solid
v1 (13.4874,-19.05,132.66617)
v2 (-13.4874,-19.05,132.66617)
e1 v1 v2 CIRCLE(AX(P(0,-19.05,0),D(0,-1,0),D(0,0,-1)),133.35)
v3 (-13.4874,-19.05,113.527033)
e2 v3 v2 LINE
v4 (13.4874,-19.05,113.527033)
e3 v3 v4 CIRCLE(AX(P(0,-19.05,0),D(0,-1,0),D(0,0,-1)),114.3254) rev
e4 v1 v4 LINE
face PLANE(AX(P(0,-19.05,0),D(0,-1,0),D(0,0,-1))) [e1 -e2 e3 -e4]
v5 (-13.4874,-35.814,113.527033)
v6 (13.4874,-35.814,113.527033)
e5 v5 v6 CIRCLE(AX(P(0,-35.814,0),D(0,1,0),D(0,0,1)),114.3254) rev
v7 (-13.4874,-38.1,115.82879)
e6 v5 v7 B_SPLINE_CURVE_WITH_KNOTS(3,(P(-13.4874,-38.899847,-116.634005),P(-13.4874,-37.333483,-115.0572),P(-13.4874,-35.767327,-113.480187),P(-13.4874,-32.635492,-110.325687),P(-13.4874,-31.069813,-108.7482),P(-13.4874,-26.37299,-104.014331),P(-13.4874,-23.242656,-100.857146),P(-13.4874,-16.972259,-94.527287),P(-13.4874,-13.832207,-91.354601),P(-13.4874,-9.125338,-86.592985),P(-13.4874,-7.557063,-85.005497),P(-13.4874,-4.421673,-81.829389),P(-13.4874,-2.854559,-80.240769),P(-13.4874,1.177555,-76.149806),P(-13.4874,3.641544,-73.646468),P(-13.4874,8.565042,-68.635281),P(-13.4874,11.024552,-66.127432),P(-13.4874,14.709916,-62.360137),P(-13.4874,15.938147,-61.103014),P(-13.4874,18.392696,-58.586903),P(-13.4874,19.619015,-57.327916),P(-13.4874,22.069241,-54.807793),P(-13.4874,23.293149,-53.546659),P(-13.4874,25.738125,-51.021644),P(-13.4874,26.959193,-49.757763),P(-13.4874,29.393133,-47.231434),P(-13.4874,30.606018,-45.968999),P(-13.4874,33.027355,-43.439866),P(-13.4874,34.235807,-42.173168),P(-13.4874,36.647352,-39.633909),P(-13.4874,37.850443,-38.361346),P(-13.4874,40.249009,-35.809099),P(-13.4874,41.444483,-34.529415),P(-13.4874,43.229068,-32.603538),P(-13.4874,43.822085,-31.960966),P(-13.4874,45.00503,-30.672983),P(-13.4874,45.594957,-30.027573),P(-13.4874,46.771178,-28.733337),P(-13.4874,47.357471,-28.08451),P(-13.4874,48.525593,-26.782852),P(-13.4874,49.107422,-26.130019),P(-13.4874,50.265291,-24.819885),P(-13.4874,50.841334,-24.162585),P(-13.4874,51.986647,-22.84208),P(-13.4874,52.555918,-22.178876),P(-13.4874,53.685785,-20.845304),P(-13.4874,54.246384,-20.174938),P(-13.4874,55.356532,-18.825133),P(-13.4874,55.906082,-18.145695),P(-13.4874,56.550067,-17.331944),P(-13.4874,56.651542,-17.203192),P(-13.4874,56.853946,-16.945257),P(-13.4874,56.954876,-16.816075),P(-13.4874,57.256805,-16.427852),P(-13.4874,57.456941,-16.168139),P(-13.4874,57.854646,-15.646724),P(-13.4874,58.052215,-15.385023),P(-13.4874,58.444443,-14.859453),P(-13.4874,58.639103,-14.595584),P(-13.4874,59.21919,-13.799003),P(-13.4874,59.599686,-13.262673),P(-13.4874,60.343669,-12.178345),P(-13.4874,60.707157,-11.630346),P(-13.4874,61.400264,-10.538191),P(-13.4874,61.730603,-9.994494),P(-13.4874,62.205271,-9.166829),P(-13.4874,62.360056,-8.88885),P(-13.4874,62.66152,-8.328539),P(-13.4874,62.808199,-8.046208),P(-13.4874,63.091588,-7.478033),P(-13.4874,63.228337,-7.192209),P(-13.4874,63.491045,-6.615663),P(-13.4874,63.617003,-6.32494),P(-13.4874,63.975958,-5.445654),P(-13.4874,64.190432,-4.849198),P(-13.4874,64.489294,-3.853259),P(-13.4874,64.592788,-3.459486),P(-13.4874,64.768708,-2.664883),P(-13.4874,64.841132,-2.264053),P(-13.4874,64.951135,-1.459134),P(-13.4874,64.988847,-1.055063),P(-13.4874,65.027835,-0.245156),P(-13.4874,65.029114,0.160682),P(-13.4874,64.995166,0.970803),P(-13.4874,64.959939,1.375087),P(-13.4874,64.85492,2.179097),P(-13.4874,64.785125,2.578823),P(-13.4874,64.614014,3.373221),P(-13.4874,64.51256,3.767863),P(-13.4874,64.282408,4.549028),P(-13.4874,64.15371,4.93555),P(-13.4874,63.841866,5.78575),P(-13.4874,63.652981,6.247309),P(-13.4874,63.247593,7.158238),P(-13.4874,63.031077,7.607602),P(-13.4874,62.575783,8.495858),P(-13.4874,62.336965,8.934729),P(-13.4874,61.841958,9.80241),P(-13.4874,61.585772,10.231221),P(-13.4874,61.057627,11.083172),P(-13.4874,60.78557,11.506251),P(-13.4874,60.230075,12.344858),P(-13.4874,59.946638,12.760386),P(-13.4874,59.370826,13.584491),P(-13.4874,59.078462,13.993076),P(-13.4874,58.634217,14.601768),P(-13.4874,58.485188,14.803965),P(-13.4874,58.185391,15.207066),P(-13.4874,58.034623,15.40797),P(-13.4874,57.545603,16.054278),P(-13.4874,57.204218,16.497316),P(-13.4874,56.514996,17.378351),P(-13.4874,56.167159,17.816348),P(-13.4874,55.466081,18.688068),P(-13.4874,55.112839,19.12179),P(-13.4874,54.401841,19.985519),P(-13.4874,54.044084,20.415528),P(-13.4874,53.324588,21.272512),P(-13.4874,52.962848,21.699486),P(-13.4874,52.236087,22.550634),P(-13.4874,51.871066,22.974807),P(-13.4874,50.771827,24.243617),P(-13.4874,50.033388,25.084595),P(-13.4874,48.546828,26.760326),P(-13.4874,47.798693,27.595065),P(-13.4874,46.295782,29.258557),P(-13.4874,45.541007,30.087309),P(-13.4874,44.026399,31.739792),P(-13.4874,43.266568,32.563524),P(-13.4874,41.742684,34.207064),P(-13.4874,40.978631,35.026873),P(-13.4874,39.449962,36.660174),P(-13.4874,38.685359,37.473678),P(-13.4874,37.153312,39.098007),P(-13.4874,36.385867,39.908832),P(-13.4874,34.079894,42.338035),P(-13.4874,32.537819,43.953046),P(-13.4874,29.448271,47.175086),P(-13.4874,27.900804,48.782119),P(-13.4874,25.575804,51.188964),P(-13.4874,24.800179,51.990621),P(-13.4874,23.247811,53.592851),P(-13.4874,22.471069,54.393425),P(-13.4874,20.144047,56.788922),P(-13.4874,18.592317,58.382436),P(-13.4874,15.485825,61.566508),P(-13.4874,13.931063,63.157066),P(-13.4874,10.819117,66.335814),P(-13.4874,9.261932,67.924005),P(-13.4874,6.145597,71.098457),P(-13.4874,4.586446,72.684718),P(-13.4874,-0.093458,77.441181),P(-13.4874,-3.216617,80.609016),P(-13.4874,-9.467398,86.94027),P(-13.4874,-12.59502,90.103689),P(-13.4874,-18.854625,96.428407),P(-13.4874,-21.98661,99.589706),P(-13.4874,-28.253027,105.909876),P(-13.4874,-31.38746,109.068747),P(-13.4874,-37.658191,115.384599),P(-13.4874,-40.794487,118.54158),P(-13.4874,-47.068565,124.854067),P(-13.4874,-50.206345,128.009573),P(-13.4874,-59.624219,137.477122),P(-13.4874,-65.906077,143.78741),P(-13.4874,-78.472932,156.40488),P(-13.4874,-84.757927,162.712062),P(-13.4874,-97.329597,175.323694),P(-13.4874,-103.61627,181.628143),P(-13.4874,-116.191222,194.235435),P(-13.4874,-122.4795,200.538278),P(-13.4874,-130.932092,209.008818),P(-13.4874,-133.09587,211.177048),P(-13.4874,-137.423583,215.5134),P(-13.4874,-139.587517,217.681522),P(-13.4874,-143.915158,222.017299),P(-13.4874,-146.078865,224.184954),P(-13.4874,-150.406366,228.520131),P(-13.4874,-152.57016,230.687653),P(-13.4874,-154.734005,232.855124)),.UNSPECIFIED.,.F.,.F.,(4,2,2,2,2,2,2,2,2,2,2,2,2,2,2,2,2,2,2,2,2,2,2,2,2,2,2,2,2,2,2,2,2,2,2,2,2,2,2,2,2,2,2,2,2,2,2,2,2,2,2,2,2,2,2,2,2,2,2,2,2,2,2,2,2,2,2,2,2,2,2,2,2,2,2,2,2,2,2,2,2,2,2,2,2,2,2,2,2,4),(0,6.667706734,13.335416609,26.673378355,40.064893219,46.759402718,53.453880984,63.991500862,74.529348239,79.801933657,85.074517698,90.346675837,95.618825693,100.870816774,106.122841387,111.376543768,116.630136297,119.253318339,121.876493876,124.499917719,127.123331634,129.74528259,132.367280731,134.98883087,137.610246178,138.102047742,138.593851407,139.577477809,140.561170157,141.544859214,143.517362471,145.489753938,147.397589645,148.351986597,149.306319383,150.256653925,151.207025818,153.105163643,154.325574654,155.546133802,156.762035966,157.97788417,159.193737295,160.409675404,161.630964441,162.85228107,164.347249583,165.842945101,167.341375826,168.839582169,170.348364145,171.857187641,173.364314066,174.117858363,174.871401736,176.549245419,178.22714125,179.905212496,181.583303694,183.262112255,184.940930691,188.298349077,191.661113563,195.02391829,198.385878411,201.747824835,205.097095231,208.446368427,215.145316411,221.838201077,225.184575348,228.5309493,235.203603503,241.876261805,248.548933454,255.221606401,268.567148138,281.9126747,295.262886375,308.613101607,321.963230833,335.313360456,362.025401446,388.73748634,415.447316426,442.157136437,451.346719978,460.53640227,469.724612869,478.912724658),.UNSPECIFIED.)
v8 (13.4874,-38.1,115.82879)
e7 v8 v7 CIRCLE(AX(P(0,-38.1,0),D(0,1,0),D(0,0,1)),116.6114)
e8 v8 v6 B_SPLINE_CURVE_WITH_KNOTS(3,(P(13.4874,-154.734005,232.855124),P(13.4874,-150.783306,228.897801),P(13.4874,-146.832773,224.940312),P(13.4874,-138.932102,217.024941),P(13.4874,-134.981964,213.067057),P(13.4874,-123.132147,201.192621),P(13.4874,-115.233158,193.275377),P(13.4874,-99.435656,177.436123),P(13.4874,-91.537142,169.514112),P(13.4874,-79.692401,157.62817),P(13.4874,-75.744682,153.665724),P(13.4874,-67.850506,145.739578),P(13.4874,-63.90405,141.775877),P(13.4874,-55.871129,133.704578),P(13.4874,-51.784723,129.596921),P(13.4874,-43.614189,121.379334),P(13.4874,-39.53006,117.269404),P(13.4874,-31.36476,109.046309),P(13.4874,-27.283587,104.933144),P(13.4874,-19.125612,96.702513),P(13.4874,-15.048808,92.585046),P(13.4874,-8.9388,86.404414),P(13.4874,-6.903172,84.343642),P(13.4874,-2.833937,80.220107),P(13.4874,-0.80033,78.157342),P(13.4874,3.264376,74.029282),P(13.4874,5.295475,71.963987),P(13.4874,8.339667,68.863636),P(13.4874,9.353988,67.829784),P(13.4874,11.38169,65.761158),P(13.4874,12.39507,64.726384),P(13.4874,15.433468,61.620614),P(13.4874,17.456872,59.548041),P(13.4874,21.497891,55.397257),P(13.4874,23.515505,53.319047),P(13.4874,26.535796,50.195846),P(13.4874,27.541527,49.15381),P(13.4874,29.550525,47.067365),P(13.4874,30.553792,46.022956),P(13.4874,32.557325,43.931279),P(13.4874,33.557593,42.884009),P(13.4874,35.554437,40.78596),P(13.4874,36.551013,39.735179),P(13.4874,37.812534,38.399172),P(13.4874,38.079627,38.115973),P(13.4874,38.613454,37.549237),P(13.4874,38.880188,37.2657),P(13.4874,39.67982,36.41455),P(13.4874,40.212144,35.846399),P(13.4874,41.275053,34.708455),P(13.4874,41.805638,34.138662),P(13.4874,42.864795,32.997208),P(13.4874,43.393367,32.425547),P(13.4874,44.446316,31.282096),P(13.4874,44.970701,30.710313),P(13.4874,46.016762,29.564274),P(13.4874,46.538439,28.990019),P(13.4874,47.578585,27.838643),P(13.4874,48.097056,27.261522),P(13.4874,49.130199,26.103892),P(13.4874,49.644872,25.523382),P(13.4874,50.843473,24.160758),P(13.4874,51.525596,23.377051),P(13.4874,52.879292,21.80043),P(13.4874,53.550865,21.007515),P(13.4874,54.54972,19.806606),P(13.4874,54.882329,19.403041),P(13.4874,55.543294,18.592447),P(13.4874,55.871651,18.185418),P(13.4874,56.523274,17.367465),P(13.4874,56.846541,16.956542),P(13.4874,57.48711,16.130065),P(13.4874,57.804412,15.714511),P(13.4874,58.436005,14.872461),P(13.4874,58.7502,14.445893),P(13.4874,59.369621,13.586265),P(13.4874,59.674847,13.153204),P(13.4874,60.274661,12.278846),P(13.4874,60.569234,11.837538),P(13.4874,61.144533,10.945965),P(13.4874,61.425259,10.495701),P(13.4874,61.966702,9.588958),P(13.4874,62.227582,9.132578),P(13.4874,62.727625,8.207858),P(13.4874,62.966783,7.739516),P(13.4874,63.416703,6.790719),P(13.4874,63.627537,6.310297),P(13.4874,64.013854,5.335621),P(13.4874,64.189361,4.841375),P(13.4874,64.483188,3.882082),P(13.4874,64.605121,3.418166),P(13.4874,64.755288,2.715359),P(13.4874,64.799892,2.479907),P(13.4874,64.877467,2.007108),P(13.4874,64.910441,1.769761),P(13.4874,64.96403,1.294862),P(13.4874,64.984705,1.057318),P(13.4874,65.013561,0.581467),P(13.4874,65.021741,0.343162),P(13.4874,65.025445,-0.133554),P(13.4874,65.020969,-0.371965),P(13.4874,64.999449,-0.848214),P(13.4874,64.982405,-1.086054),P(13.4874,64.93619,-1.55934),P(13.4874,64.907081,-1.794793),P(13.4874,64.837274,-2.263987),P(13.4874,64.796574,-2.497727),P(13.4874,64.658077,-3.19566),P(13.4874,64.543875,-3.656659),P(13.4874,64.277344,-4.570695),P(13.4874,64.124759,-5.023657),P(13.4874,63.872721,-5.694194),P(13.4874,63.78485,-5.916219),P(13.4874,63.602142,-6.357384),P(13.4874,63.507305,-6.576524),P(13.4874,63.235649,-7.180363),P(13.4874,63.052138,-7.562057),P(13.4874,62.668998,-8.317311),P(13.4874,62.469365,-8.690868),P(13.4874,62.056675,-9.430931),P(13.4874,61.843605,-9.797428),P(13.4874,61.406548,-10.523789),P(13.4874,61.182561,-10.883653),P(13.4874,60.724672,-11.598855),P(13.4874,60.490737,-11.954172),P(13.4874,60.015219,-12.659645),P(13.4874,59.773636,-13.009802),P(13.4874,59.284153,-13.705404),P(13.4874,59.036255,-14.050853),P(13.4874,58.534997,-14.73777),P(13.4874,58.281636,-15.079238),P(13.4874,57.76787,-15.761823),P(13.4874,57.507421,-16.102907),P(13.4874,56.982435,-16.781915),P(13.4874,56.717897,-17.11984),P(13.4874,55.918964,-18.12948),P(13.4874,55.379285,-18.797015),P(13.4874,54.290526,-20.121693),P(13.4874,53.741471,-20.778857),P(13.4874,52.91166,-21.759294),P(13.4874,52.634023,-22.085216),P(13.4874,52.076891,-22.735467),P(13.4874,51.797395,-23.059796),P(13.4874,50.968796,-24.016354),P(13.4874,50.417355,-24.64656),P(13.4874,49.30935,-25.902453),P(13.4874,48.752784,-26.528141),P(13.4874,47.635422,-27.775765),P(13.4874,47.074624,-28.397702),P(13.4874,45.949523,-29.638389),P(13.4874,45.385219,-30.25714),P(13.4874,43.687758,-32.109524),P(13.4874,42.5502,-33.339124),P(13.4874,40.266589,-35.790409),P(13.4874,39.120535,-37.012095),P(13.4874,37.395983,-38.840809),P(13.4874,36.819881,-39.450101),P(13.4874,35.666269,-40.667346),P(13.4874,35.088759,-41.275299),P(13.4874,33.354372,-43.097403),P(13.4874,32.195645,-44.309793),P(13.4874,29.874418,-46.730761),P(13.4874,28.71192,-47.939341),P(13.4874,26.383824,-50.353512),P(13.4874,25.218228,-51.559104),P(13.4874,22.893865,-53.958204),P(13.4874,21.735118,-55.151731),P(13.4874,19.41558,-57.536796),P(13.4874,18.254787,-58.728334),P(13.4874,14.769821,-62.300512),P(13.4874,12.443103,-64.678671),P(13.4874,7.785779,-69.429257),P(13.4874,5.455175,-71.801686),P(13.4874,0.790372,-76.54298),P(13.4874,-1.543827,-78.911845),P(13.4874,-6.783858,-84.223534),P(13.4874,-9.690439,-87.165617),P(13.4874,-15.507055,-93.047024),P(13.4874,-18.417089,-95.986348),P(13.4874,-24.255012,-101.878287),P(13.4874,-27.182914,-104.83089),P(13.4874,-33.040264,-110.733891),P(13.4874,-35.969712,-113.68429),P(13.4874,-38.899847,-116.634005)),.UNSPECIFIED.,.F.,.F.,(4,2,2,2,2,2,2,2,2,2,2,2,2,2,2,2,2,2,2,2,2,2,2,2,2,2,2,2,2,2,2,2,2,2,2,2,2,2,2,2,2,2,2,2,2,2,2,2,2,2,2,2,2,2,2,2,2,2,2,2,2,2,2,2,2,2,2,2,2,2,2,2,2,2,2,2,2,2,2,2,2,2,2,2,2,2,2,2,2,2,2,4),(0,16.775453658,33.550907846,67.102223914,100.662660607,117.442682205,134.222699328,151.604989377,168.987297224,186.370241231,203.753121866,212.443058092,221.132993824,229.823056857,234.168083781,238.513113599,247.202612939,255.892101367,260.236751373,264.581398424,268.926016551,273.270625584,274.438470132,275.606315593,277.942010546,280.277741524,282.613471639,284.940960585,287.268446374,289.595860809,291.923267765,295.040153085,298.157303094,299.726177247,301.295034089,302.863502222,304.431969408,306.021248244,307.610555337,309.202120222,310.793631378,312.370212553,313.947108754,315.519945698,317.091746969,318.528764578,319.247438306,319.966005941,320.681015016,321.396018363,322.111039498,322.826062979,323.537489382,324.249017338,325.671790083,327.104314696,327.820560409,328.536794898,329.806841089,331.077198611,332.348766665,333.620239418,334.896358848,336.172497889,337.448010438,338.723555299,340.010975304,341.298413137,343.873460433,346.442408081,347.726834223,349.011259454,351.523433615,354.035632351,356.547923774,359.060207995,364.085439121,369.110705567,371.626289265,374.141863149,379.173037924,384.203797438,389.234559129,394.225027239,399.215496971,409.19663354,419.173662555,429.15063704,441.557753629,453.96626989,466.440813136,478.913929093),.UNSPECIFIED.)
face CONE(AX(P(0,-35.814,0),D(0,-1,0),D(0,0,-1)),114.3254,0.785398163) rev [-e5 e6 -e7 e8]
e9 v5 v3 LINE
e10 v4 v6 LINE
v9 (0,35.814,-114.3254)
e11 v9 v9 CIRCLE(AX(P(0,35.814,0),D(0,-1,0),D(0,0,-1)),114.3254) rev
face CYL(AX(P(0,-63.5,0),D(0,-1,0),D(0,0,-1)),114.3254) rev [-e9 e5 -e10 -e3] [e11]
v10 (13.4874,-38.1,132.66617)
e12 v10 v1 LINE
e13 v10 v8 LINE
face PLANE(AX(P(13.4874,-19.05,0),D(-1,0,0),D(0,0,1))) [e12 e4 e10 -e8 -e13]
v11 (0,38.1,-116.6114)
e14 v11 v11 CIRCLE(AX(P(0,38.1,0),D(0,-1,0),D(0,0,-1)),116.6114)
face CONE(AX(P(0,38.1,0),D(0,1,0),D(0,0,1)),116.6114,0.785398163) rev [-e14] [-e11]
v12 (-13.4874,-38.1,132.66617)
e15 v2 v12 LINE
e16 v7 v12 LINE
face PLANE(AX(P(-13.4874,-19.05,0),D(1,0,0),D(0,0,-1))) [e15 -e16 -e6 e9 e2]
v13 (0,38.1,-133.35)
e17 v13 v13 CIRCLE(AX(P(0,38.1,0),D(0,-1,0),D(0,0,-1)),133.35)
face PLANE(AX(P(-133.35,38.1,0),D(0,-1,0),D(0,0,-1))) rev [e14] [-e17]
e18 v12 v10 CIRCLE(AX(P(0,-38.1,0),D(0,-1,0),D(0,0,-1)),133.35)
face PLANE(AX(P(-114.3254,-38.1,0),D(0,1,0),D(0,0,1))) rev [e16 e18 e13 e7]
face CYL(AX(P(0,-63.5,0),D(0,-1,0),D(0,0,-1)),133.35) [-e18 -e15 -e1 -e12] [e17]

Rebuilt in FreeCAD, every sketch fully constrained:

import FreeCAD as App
import Part
import Sketcher
from FreeCAD import Vector
Q = App.Units.Quantity


def edges_at(feature, points):
    """Names of the edges that pass closest to the given points."""
    edges = feature.Shape.Edges
    near = lambda p: min(range(len(edges)), key=lambda i: edges[i].distToShape(Part.Vertex(*p))[0])
    return sorted({f"Edge{near(p) + 1}" for p in points})

doc = App.newDocument("Part")
body = doc.addObject("PartDesign::Body", "Body")

# Sketch on XY plane
sketch1 = body.newObject("Sketcher::SketchObject", "Sketch")
sketch1.AttachmentSupport = (doc.getObject("XY_Plane"), [""])
sketch1.MapMode = "FlatFace"
sketch1.addGeometry(Part.LineSegment(Vector(-133, -38, 0), Vector(-114, -38, 0)), False)
sketch1.addGeometry(Part.LineSegment(Vector(-114, -38, 0), Vector(-114, 38, 0)), False)
sketch1.addGeometry(Part.LineSegment(Vector(-114, 38, 0), Vector(-133, 38, 0)), False)
sketch1.addGeometry(Part.LineSegment(Vector(-133, 38, 0), Vector(-133, -38, 0)), False)
sketch1.addConstraint(Sketcher.Constraint("Coincident", 0, 2, 1, 1))
sketch1.addConstraint(Sketcher.Constraint("Coincident", 1, 2, 2, 1))
sketch1.addConstraint(Sketcher.Constraint("Coincident", 2, 2, 3, 1))
sketch1.addConstraint(Sketcher.Constraint("Coincident", 3, 2, 0, 1))
sketch1.addConstraint(Sketcher.Constraint("Horizontal", 0))
sketch1.addConstraint(Sketcher.Constraint("Vertical", 1))
sketch1.addConstraint(Sketcher.Constraint("Horizontal", 2))
sketch1.addConstraint(Sketcher.Constraint("Vertical", 3))
sketch1.addConstraint(Sketcher.Constraint("DistanceY", 1, 1, 1, 2, Q("3 in")))
sketch1.addConstraint(Sketcher.Constraint("DistanceY", 0, 2, -1, 1, Q("1.5 in")))
sketch1.addConstraint(Sketcher.Constraint("DistanceX", 0, 1, 0, 2, Q("0.749 in")))
sketch1.addConstraint(Sketcher.Constraint("DistanceX", 2, 2, -1, 1, Q("5.25 in")))
revolution = body.newObject("PartDesign::Revolution", "Revolution")
revolution.Profile = sketch1
revolution.ReferenceAxis = (sketch1, ["V_Axis"])
revolution.Angle = 360
doc.recompute()

chamfer = body.newObject("PartDesign::Chamfer", "Chamfer")
chamfer.Base = (revolution, edges_at(revolution, [(0, -38.1, 114.325), (0, 38.1, 114.325)]))
chamfer.Size = Q("0.09 in")

# Sketch on XZ plane
sketch2 = body.newObject("Sketcher::SketchObject", "Sketch001")
sketch2.AttachmentSupport = (doc.getObject("XZ_Plane"), [""])
sketch2.MapMode = "FlatFace"
sketch2.AttachmentOffset = App.Placement(Vector(0, 0, 1.5 * 25.4), App.Rotation())
sketch2.addGeometry(Part.LineSegment(Vector(13, 267, 0), Vector(13, 0, 0)), False)
sketch2.addGeometry(Part.LineSegment(Vector(13, 0, 0), Vector(-13, 0, 0)), False)
sketch2.addGeometry(Part.LineSegment(Vector(-13, 0, 0), Vector(-13, 267, 0)), False)
sketch2.addGeometry(Part.LineSegment(Vector(-13, 267, 0), Vector(13, 267, 0)), False)
sketch2.addConstraint(Sketcher.Constraint("Coincident", 0, 2, 1, 1))
sketch2.addConstraint(Sketcher.Constraint("Coincident", 1, 2, 2, 1))
sketch2.addConstraint(Sketcher.Constraint("Coincident", 2, 2, 3, 1))
sketch2.addConstraint(Sketcher.Constraint("Coincident", 3, 2, 0, 1))
sketch2.addConstraint(Sketcher.Constraint("Vertical", 0))
sketch2.addConstraint(Sketcher.Constraint("Horizontal", 1))
sketch2.addConstraint(Sketcher.Constraint("Vertical", 2))
sketch2.addConstraint(Sketcher.Constraint("Horizontal", 3))
sketch2.addConstraint(Sketcher.Constraint("Symmetric", 0, 2, 1, 2, -1, 1))
sketch2.addConstraint(Sketcher.Constraint("DistanceY", 0, 2, 0, 1, Q("10.5 in")))
sketch2.addConstraint(Sketcher.Constraint("DistanceX", 1, 2, 1, 1, Q("1.062 in")))
pocket1 = body.newObject("PartDesign::Pocket", "Pocket")
pocket1.Profile = sketch2
pocket1.Length = Q("0.75 in")

doc.recompute()
